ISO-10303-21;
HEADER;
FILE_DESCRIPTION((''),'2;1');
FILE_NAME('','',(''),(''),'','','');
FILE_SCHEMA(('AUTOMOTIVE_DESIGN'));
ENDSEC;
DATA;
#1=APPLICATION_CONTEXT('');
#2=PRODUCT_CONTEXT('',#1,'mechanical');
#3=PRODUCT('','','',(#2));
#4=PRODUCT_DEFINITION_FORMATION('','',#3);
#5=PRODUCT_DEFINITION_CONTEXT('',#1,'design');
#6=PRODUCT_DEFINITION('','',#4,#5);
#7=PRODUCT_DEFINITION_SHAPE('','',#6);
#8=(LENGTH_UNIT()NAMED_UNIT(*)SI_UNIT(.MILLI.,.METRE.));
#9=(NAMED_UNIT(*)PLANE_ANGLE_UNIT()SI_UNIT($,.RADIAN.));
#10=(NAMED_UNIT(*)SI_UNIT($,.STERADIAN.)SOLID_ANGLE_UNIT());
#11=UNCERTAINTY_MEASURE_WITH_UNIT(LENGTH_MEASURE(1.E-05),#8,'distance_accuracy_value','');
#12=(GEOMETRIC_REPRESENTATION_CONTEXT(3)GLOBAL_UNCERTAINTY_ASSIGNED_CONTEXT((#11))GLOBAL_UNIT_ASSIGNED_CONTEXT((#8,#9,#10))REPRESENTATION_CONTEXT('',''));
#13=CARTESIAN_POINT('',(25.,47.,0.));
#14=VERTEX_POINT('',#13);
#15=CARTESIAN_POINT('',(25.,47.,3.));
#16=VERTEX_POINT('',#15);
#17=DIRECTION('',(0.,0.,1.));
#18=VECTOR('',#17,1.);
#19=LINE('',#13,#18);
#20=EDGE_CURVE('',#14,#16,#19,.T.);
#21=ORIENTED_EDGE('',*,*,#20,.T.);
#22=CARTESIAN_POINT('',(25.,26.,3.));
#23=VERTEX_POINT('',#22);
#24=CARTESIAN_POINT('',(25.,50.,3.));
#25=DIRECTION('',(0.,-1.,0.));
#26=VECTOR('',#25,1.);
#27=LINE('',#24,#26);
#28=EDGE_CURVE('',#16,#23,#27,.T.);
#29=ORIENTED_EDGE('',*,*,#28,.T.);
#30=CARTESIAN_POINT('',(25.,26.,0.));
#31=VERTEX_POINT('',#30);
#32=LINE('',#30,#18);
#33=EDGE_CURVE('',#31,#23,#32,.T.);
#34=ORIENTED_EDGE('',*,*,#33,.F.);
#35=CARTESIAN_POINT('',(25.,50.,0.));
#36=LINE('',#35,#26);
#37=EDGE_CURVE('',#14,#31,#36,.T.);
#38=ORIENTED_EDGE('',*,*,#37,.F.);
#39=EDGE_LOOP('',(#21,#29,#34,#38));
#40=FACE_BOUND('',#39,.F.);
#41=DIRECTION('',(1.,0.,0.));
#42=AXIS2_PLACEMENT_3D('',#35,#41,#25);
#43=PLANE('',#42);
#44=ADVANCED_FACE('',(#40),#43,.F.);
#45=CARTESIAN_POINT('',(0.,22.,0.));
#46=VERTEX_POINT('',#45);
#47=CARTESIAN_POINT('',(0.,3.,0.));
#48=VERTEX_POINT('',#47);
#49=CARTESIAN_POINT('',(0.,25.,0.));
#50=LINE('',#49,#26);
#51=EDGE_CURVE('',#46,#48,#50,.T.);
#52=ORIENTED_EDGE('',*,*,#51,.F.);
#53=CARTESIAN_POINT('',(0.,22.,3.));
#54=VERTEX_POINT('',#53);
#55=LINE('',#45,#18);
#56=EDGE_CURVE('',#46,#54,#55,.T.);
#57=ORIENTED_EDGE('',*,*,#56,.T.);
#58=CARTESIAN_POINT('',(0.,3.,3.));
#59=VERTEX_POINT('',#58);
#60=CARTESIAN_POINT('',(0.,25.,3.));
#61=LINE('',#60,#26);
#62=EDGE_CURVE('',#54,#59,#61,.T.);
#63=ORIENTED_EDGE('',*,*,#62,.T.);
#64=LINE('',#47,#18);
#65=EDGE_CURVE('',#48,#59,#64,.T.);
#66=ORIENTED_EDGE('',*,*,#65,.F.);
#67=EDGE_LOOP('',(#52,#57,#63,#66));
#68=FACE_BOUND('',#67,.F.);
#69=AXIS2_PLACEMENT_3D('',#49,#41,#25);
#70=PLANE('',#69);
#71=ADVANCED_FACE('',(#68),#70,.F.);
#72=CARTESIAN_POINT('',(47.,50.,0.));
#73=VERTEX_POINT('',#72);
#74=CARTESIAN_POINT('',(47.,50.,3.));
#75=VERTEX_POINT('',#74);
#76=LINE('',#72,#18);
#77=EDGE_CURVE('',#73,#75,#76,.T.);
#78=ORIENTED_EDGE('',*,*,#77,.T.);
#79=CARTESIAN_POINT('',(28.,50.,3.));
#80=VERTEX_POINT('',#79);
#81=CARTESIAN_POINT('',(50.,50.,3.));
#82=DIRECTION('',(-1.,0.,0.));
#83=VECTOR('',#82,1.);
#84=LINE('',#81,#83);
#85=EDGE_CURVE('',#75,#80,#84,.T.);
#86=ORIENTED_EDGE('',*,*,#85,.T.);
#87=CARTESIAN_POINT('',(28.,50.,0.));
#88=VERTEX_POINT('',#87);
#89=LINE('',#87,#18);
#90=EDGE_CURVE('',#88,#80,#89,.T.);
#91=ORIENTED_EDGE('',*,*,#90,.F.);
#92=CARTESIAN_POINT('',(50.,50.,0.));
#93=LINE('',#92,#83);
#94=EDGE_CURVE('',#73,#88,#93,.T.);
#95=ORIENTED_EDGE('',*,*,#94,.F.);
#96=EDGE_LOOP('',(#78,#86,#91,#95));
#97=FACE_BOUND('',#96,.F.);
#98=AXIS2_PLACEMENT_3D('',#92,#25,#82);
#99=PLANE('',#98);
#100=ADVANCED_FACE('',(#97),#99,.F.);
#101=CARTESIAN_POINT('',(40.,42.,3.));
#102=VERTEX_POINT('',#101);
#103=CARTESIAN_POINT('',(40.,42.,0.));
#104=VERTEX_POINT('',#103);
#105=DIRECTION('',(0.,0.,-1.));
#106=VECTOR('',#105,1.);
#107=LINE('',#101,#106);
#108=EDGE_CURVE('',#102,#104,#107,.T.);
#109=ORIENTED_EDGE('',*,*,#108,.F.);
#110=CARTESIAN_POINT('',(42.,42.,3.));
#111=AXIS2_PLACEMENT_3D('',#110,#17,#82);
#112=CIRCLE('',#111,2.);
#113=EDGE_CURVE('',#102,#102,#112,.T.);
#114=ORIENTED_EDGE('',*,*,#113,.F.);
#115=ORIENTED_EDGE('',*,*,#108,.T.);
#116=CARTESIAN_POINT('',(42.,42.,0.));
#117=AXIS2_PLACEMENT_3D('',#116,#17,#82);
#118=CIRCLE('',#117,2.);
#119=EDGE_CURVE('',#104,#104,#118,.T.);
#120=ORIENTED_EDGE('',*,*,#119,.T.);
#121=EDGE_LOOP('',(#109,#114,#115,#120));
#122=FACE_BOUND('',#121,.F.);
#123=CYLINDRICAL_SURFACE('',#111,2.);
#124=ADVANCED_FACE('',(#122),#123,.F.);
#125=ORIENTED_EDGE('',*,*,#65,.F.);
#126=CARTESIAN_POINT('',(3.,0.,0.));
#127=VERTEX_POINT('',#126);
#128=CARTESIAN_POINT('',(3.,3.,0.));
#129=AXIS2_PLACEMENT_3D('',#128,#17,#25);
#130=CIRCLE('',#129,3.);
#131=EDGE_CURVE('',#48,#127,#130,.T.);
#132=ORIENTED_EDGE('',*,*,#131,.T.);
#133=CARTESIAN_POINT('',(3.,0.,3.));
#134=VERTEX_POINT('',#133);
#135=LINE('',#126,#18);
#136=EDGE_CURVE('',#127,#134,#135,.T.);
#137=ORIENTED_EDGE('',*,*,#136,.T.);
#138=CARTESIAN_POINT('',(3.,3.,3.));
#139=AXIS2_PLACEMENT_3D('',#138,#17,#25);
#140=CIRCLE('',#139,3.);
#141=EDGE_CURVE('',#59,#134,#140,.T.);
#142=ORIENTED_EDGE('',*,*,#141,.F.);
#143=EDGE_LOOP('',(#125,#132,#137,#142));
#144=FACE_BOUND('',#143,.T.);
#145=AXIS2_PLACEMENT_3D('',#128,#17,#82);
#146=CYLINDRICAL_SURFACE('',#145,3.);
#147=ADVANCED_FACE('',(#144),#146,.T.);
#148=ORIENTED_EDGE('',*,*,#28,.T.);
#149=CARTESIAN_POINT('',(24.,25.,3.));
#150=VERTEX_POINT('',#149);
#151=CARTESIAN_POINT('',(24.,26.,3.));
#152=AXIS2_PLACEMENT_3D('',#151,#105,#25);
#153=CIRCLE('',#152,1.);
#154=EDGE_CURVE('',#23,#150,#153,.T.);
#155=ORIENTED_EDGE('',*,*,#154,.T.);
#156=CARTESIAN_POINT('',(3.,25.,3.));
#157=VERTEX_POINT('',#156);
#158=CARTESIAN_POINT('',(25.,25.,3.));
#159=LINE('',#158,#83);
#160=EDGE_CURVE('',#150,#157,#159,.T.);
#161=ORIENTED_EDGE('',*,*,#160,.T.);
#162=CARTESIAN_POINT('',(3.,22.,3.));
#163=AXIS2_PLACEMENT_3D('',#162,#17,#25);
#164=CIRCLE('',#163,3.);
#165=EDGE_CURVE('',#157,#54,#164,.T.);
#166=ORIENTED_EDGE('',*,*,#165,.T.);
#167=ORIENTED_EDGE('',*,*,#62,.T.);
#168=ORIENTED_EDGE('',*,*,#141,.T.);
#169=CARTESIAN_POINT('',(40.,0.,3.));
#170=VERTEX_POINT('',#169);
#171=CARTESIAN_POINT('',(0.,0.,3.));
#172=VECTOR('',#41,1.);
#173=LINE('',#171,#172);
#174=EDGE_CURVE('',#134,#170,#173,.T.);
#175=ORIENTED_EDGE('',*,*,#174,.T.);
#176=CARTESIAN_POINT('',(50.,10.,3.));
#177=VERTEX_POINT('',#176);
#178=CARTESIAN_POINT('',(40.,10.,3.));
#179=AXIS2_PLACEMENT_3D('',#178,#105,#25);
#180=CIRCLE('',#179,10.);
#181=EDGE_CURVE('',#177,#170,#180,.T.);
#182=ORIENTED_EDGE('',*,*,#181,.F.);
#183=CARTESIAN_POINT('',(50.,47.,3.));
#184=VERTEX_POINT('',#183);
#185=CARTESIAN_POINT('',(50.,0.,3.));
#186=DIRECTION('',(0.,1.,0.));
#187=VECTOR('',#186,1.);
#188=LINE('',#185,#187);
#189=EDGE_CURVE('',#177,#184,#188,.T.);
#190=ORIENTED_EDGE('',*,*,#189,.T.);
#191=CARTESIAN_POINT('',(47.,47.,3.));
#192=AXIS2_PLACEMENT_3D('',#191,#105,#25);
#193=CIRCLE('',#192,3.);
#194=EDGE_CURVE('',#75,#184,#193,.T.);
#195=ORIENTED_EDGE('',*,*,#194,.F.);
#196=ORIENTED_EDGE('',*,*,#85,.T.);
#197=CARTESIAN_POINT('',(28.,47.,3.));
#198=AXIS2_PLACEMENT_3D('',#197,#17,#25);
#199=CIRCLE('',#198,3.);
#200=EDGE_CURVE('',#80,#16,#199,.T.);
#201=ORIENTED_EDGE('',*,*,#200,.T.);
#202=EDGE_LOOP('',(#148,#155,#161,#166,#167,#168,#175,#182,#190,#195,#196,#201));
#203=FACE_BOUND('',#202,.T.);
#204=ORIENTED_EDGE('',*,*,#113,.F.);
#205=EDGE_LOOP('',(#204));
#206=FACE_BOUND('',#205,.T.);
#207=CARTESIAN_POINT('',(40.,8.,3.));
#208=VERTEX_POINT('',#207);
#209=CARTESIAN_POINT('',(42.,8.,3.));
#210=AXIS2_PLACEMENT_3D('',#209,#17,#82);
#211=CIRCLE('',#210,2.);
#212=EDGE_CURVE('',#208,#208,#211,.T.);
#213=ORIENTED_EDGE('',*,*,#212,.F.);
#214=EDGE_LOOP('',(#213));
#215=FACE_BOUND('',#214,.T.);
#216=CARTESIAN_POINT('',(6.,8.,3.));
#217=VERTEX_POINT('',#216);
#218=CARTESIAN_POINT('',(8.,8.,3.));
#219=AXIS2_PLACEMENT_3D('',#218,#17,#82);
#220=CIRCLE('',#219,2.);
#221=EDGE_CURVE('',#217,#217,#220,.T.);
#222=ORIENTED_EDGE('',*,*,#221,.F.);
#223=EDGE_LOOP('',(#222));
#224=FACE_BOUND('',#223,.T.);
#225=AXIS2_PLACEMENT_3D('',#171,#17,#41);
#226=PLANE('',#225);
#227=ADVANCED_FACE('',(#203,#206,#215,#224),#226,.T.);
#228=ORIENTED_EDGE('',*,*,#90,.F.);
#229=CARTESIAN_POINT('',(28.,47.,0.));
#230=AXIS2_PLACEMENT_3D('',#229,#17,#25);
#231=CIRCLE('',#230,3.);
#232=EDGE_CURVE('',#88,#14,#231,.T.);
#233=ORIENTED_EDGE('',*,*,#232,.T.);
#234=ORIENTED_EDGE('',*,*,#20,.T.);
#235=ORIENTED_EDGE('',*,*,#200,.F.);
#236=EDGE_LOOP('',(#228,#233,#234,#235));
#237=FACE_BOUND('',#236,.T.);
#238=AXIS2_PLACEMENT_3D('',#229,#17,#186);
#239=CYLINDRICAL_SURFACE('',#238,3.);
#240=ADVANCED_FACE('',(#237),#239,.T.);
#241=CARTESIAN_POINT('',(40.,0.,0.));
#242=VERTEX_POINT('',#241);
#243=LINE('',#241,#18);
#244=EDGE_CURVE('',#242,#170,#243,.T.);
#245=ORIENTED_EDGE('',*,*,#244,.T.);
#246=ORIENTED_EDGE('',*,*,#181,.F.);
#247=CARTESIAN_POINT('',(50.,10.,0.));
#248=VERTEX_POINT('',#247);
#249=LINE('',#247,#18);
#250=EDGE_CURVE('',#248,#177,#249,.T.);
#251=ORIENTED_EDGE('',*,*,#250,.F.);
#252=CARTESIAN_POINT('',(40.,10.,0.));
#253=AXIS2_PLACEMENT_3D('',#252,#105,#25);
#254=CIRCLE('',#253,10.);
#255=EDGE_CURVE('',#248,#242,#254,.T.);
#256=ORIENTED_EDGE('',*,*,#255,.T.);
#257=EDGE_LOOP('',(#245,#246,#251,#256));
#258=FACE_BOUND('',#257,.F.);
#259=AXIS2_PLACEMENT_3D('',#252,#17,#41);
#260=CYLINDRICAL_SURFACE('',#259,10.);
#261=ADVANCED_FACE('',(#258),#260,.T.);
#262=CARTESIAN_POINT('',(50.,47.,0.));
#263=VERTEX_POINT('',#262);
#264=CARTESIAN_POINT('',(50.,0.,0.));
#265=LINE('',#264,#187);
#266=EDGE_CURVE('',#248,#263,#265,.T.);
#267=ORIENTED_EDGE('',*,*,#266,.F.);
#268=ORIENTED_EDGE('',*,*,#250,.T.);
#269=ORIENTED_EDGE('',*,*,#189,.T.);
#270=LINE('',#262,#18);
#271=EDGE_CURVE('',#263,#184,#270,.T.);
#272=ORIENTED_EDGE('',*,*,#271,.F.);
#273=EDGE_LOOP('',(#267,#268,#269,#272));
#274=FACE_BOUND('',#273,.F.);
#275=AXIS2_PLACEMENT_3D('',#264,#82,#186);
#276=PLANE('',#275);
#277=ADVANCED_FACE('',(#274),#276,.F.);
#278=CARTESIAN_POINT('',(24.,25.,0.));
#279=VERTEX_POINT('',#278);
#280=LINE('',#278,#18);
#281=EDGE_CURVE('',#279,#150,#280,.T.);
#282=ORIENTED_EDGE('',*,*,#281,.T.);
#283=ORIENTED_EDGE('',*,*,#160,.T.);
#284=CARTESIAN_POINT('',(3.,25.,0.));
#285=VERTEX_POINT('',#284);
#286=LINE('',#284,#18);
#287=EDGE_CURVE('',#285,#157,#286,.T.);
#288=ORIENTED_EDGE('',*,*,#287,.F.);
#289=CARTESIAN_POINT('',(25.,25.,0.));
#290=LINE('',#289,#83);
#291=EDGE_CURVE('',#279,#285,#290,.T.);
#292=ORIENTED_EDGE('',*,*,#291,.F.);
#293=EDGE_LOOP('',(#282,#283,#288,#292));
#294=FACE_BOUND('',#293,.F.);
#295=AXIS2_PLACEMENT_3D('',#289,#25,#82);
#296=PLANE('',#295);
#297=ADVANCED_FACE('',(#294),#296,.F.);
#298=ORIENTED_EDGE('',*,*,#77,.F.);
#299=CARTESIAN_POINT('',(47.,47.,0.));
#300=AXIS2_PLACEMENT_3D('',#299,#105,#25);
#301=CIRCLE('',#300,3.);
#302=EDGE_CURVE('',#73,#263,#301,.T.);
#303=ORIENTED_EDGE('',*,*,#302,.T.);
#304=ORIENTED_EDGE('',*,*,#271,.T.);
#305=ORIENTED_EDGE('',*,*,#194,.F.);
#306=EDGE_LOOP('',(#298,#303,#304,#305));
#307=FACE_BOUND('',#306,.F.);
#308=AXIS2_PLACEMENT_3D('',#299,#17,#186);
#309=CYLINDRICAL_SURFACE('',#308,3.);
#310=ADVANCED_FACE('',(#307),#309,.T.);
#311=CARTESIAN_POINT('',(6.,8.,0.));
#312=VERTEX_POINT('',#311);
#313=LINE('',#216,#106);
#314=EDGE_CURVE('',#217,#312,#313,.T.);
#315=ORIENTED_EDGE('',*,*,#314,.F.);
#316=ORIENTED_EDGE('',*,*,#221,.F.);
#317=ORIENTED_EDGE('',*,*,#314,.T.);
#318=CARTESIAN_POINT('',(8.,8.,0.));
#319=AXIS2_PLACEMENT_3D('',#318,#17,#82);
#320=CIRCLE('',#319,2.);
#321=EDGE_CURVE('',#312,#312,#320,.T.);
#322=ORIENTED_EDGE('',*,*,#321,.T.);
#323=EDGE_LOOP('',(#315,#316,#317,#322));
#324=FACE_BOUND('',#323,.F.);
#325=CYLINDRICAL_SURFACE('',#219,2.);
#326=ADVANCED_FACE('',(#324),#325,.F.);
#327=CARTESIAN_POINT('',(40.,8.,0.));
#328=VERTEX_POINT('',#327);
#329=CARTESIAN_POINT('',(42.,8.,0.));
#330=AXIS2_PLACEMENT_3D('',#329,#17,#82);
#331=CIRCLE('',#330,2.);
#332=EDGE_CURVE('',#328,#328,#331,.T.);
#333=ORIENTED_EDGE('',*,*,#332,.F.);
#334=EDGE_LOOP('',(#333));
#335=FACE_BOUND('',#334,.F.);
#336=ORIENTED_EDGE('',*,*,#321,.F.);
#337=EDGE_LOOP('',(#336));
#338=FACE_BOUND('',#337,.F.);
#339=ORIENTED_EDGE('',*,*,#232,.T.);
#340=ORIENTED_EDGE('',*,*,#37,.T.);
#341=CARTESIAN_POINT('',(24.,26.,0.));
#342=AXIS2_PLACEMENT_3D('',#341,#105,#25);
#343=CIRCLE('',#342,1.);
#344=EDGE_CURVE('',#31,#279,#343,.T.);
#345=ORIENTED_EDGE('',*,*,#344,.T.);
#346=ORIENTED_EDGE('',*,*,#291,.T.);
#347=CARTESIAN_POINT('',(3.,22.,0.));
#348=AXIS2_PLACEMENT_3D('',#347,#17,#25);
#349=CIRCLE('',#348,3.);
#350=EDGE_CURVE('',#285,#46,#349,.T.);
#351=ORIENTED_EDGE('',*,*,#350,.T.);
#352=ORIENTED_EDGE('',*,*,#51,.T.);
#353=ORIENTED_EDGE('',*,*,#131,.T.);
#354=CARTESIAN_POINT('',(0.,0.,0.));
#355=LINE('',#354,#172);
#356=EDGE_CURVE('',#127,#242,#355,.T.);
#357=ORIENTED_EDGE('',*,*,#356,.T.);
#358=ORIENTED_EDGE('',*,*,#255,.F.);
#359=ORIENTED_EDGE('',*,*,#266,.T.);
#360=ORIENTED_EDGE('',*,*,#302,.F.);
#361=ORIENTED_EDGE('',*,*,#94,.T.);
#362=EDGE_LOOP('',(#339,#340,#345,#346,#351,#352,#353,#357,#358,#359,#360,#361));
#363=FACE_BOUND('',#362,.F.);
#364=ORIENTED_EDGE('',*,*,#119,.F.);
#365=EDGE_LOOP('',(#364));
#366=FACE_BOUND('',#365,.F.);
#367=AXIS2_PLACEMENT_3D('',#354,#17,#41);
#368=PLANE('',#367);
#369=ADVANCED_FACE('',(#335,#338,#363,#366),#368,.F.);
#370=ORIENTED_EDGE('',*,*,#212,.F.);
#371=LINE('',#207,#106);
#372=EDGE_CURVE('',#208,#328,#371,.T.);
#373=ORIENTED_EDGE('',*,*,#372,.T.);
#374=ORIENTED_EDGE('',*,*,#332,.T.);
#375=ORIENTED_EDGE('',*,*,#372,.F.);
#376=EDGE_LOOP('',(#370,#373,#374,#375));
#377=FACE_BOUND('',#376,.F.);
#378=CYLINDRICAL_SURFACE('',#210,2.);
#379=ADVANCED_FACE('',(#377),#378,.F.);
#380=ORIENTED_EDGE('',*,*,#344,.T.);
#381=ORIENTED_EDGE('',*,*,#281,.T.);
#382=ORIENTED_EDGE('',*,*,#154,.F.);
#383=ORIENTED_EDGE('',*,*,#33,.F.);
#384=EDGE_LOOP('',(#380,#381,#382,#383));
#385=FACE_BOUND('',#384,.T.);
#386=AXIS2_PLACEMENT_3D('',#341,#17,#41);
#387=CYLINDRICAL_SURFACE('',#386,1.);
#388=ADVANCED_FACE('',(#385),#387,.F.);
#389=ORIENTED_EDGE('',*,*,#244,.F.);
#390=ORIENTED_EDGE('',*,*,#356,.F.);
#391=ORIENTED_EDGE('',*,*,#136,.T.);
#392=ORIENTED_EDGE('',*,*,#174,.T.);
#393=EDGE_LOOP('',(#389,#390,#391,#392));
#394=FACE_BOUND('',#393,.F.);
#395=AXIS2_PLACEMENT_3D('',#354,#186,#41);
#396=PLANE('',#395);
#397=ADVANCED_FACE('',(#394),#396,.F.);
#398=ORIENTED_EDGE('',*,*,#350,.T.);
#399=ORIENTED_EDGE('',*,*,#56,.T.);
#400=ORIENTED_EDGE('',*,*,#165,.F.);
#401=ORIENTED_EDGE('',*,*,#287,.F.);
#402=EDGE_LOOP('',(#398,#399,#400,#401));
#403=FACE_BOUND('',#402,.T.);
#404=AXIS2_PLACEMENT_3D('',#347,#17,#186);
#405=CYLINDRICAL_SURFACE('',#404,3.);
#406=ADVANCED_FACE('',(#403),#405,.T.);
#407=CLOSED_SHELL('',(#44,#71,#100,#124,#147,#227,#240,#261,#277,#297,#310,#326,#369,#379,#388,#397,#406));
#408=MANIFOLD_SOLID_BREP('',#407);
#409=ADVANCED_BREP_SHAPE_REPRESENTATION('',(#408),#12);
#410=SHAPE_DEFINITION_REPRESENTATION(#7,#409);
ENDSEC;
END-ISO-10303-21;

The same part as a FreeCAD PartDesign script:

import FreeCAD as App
import Part
import Sketcher
Q = App.Units.Quantity


def edges_at(feature, points):
    """Names of the edges that pass closest to the given points."""
    edges = feature.Shape.Edges
    near = lambda p: min(range(len(edges)), key=lambda i: edges[i].distToShape(Part.Vertex(*p))[0])
    return sorted({f"Edge{near(p) + 1}" for p in points})


def add_polygon(sketch, points):
    """Adds a closed chain of lines whose ends are joined by coincident constraints."""
    first, n = sketch.GeometryCount, len(points)
    for a, b in zip(points, points[1:] + points[:1]):
        sketch.addGeometry(Part.LineSegment(App.Vector(*a, 0), App.Vector(*b, 0)), False)
    for i in range(n):
        sketch.addConstraint(Sketcher.Constraint("Coincident", first + i, 2, first + (i + 1) % n, 1))

doc = App.newDocument("Part")
params = doc.addObject("Spreadsheet::Sheet", "Params")
for row, (alias, value) in enumerate([
    ("sketch1_width", "50 mm"),
    ("pad1_length", "3 mm"),
    ("fillet_radius", "10 mm"),
    ("fillet2_radius", "1 mm"),
    ("fillet3_radius", "3 mm"),
    ("fillet4_radius", "3 mm"),
    ("fillet5_radius", "3 mm"),
    ("fillet6_radius", "3 mm"),
    ("sketch2_diameter", "4 mm"),
    ("pocket1_length", "3 mm"),
], start=1):
    params.set(f"A{row}", alias)
    params.set(f"B{row}", "=" + value)
    params.setAlias(f"B{row}", alias)

body = doc.addObject("PartDesign::Body", "Body")

sketch1 = body.newObject("Sketcher::SketchObject", "Sketch")
sketch1.AttachmentSupport = (doc.getObject("XY_Plane"), [""])
sketch1.MapMode = "FlatFace"
add_polygon(sketch1, [(0, 25), (0, 0), (50, 0), (50, 50), (25, 50), (25, 25)])
sketch1.addConstraint([
    Sketcher.Constraint("Vertical", 0),
    Sketcher.Constraint("Horizontal", 1),
    Sketcher.Constraint("Vertical", 2),
    Sketcher.Constraint("Horizontal", 3),
    Sketcher.Constraint("Vertical", 4),
    Sketcher.Constraint("Horizontal", 5),
    Sketcher.Constraint("Coincident", 0, 2, -1, 1),
    Sketcher.Constraint("Equal", 3, 5),
    Sketcher.Constraint("Equal", 5, 0),
    Sketcher.Constraint("Equal", 1, 2),
    Sketcher.Constraint("DistanceX", 1, 1, 1, 2, Q("50 mm")),
])
sketch1.setExpression("Constraints[16]", "Params.sketch1_width")
pad1 = body.newObject("PartDesign::Pad", "Pad")
pad1.Profile = sketch1
pad1.setExpression("Length", "Params.pad1_length")
doc.recompute()

fillet = body.newObject("PartDesign::Fillet", "Fillet")
fillet.Base = (pad1, edges_at(pad1, [(50, 0, 1.5)]))
fillet.setExpression("Radius", "Params.fillet_radius")
doc.recompute()

fillet2 = body.newObject("PartDesign::Fillet", "Fillet001")
fillet2.Base = (fillet, edges_at(fillet, [(25, 25, 1.5)]))
fillet2.setExpression("Radius", "Params.fillet2_radius")
doc.recompute()

fillet3 = body.newObject("PartDesign::Fillet", "Fillet002")
fillet3.Base = (fillet2, edges_at(fillet2, [(50, 50, 1.5)]))
fillet3.setExpression("Radius", "Params.fillet3_radius")
doc.recompute()

fillet4 = body.newObject("PartDesign::Fillet", "Fillet003")
fillet4.Base = (fillet3, edges_at(fillet3, [(25, 50, 1.5)]))
fillet4.setExpression("Radius", "Params.fillet4_radius")
doc.recompute()

fillet5 = body.newObject("PartDesign::Fillet", "Fillet004")
fillet5.Base = (fillet4, edges_at(fillet4, [(0, 25, 1.5)]))
fillet5.setExpression("Radius", "Params.fillet5_radius")
doc.recompute()

fillet6 = body.newObject("PartDesign::Fillet", "Fillet005")
fillet6.Base = (fillet5, edges_at(fillet5, [(0, 0, 1.5)]))
fillet6.setExpression("Radius", "Params.fillet6_radius")

sketch2 = body.newObject("Sketcher::SketchObject", "Sketch001")
sketch2.AttachmentSupport = (doc.getObject("XY_Plane"), [""])
sketch2.MapMode = "FlatFace"
sketch2.AttachmentOffset = App.Placement(App.Vector(0, 0, 3), App.Rotation())
sketch2.addGeometry([
    Part.Circle(App.Vector(42, 8, 0), App.Vector(0, 0, 1), 2),
    Part.Circle(App.Vector(42, 42, 0), App.Vector(0, 0, 1), 2),
    Part.Circle(App.Vector(8, 8, 0), App.Vector(0, 0, 1), 2),
], False)
sketch2.addConstraint([
    Sketcher.Constraint("Equal", 0, 1),
    Sketcher.Constraint("Equal", 1, 2),
    Sketcher.Constraint("Horizontal", 0, 3, 2, 3),
    Sketcher.Constraint("Vertical", 0, 3, 1, 3),
    Sketcher.Constraint("Diameter", 0, Q("4 mm")),
    Sketcher.Constraint("DistanceY", -1, 1, 0, 3, Q("8 mm")),
    Sketcher.Constraint("DistanceX", -1, 1, 2, 3, Q("8 mm")),
    Sketcher.Constraint("DistanceX", -1, 1, 0, 3, Q("42 mm")),
    Sketcher.Constraint("DistanceY", -1, 1, 1, 3, Q("42 mm")),
])
sketch2.setExpression("Constraints[4]", "Params.sketch2_diameter")
pocket1 = body.newObject("PartDesign::Pocket", "Pocket")
pocket1.Profile = sketch2
pocket1.setExpression("Length", "Params.pocket1_length")

doc.recompute()
